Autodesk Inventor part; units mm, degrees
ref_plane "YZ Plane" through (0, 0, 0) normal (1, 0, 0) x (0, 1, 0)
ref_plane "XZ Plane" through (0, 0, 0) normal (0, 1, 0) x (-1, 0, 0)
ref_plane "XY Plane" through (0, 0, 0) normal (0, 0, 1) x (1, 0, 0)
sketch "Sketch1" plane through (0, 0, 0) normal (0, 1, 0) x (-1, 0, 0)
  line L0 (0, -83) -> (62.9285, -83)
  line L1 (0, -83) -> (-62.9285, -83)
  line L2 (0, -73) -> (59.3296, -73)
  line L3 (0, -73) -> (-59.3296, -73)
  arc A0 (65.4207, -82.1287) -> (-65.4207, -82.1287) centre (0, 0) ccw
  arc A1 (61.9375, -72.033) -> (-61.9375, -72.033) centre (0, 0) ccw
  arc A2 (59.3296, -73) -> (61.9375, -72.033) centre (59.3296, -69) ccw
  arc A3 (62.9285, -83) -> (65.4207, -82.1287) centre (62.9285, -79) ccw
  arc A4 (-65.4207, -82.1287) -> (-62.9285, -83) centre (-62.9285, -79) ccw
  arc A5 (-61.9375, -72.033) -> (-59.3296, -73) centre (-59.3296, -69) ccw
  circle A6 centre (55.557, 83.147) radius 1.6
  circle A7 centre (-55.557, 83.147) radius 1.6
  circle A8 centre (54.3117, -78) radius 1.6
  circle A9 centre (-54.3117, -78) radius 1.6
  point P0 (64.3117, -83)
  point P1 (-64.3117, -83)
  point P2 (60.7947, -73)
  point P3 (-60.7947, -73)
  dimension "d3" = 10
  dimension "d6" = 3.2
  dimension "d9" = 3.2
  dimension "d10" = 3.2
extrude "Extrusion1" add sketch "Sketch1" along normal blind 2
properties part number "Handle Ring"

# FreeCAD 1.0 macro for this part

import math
import FreeCAD as App
import Part
import Sketcher

V = App.Vector

doc = App.newDocument("Part")
body = doc.addObject("PartDesign::Body", "Body")

# Sketch on XZ plane
sketch1 = body.newObject("Sketcher::SketchObject", "Sketch")
sketch1.AttachmentSupport = (doc.getObject("XZ_Plane"), [""])
sketch1.MapMode = "FlatFace"
sketch1.addGeometry([
    Part.LineSegment(V(62.9, -83, 0), V(-62.9, -83, 0)),  # 0
    Part.ArcOfCircle(Part.Circle(V(-62.9, -79, 0), V(0, 0, 1), 4), math.radians(-129), math.radians(-90)),  # 1
    Part.ArcOfCircle(Part.Circle(V(0, 0, 0), V(0, 0, 1), 105), math.radians(-51), math.radians(231)),  # 2
    Part.ArcOfCircle(Part.Circle(V(62.9, -79, 0), V(0, 0, 1), 4), math.radians(-90), math.radians(-51)),  # 3
    Part.Circle(V(54.3, -78, 0), V(0, 0, 1), 1.6),  # 4
    Part.Circle(V(-54.3, -78, 0), V(0, 0, 1), 1.6),  # 5
    Part.Circle(V(55.6, 83.1, 0), V(0, 0, 1), 1.6),  # 6
    Part.LineSegment(V(-59.3, -73, 0), V(59.3, -73, 0)),  # 7
    Part.ArcOfCircle(Part.Circle(V(59.3, -69, 0), V(0, 0, 1), 4), math.radians(-90), math.radians(-49)),  # 8
    Part.ArcOfCircle(Part.Circle(V(0, 0, 0), V(0, 0, 1), 95), math.radians(-49), math.radians(229)),  # 9
    Part.ArcOfCircle(Part.Circle(V(-59.3, -69, 0), V(0, 0, 1), 4), math.radians(-131), math.radians(-90)),  # 10
    Part.Circle(V(-55.6, 83.1, 0), V(0, 0, 1), 1.6),  # 11
], False)
sketch1.addConstraint([
    Sketcher.Constraint("Tangent", 0, 2, 1, 2),
    Sketcher.Constraint("Tangent", 1, 1, 2, 2),
    Sketcher.Constraint("Tangent", 2, 1, 3, 2),
    Sketcher.Constraint("Tangent", 3, 1, 0, 1),
    Sketcher.Constraint("Tangent", 7, 2, 8, 1),
    Sketcher.Constraint("Tangent", 8, 2, 9, 1),
    Sketcher.Constraint("Tangent", 9, 2, 10, 1),
    Sketcher.Constraint("Tangent", 10, 2, 7, 1),
    Sketcher.Constraint("Horizontal", 0),
    Sketcher.Constraint("Horizontal", 7),
    Sketcher.Constraint("Coincident", 2, 3, -1, 1),
    Sketcher.Constraint("Coincident", 9, 3, -1, 1),
    Sketcher.Constraint("Equal", 1, 3),
    Sketcher.Constraint("Equal", 4, 5),
    Sketcher.Constraint("Equal", 5, 6),
    Sketcher.Constraint("Equal", 3, 8),
    Sketcher.Constraint("Equal", 8, 10),
    Sketcher.Constraint("Equal", 6, 11),
    Sketcher.Constraint("Symmetric", 4, 3, 5, 3, -2),
    Sketcher.Constraint("Symmetric", 6, 3, 11, 3, -2),
    Sketcher.Constraint("Diameter", 4, 3.2),
    Sketcher.Constraint("Radius", 1, 4.0),
    Sketcher.Constraint("Radius", 2, 105.0),
    Sketcher.Constraint("Radius", 9, 95.0),
    Sketcher.Constraint("DistanceY", 3, 3, 8, 3, 10.0),
    Sketcher.Constraint("DistanceY", 1, 3, -1, 1, 79.0),
    Sketcher.Constraint("DistanceY", 4, 3, -1, 1, 78.0),
    Sketcher.Constraint("DistanceX", -1, 1, 6, 3, 55.557),
    Sketcher.Constraint("DistanceY", -1, 1, 6, 3, 83.147),
    Sketcher.Constraint("DistanceX", 4, 3, 8, 3, 5.018),
])
pad1 = body.newObject("PartDesign::Pad", "Pad")
pad1.Profile = sketch1
pad1.Length = 2
pad1.Reversed = True

doc.recompute()
